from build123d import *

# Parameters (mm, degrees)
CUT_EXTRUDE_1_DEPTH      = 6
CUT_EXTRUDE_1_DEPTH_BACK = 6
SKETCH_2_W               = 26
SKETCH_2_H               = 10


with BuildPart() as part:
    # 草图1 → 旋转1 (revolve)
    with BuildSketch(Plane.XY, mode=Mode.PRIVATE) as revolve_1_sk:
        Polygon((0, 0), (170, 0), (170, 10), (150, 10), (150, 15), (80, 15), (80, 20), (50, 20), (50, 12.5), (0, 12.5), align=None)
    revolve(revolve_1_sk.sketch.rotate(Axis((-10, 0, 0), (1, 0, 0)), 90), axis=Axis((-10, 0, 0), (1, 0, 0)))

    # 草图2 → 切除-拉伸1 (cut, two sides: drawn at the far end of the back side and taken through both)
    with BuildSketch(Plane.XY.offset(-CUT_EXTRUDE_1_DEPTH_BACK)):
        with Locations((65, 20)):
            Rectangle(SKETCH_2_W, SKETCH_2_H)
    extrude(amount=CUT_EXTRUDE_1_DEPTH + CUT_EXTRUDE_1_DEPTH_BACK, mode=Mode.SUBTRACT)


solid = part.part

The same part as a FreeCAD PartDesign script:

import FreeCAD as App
import Part
import Sketcher
Q = App.Units.Quantity


def add_polygon(sketch, points):
    """Adds a closed chain of lines whose ends are joined by coincident constraints."""
    first, n = sketch.GeometryCount, len(points)
    for a, b in zip(points, points[1:] + points[:1]):
        sketch.addGeometry(Part.LineSegment(App.Vector(*a, 0), App.Vector(*b, 0)), False)
    for i in range(n):
        sketch.addConstraint(Sketcher.Constraint("Coincident", first + i, 2, first + (i + 1) % n, 1))

doc = App.newDocument("Part")
params = doc.addObject("Spreadsheet::Sheet", "Params")
for row, (alias, value) in enumerate([
    ("sketch1_width", "170 mm"),
    ("sketch1_width2", "20 mm"),
    ("sketch1_width3", "70 mm"),
    ("sketch1_width4", "30 mm"),
    ("sketch1_height", "10 mm"),
    ("revolution_angle", "360 deg"),
    ("sketch2_width", "26 mm"),
    ("sketch2_height", "10 mm"),
    ("pocket1_length", "6 mm"),
    ("pocket1_length2", "6 mm"),
], start=1):
    params.set(f"A{row}", alias)
    params.set(f"B{row}", "=" + value)
    params.setAlias(f"B{row}", alias)

body = doc.addObject("PartDesign::Body", "Body")

# Sketch on XY plane
sketch1 = doc.addObject("Sketcher::SketchObject", "Sketch")
body.addObject(sketch1)
sketch1.AttachmentSupport = (doc.XY_Plane, [""])
sketch1.MapMode = "FlatFace"
add_polygon(sketch1, [(0, 0), (170, 0), (170, 10), (150, 10), (150, 15), (80, 15), (80, 20), (50, 20), (50, 12), (0, 12)])  # lines 0-9
sketch1.addConstraint(Sketcher.Constraint("Horizontal", 0))
sketch1.addConstraint(Sketcher.Constraint("Vertical", 1))
sketch1.addConstraint(Sketcher.Constraint("Horizontal", 2))
sketch1.addConstraint(Sketcher.Constraint("Vertical", 3))
sketch1.addConstraint(Sketcher.Constraint("Horizontal", 4))
sketch1.addConstraint(Sketcher.Constraint("Vertical", 5))
sketch1.addConstraint(Sketcher.Constraint("Horizontal", 6))
sketch1.addConstraint(Sketcher.Constraint("Vertical", 7))
sketch1.addConstraint(Sketcher.Constraint("Horizontal", 8))
sketch1.addConstraint(Sketcher.Constraint("Vertical", 9))
sketch1.addConstraint(Sketcher.Constraint("Coincident", 9, 2, -1, 1))
sketch1.addConstraint(Sketcher.Constraint("Equal", 3, 5))
sketch1.addConstraint(Sketcher.Constraint("DistanceX", 0, 1, 0, 2, Q("170 mm")))
sketch1.addConstraint(Sketcher.Constraint("DistanceX", 2, 2, 2, 1, Q("20 mm")))
sketch1.addConstraint(Sketcher.Constraint("DistanceX", 4, 2, 4, 1, Q("70 mm")))
sketch1.addConstraint(Sketcher.Constraint("DistanceX", 6, 2, 6, 1, Q("30 mm")))
sketch1.addConstraint(Sketcher.Constraint("DistanceY", 1, 1, 1, 2, Q("10 mm")))
sketch1.addConstraint(Sketcher.Constraint("DistanceY", 3, 1, 3, 2, Q("5 mm")))
sketch1.addConstraint(Sketcher.Constraint("DistanceY", 7, 2, 7, 1, Q("7.5 mm")))
sketch1.setExpression("Constraints[22]", "Params.sketch1_width")
sketch1.setExpression("Constraints[23]", "Params.sketch1_width2")
sketch1.setExpression("Constraints[24]", "Params.sketch1_width3")
sketch1.setExpression("Constraints[25]", "Params.sketch1_width4")
sketch1.setExpression("Constraints[26]", "Params.sketch1_height")
revolution = doc.addObject("PartDesign::Revolution", "Revolution")
body.addObject(revolution)
revolution.Profile = sketch1
revolution.ReferenceAxis = (sketch1, ["H_Axis"])
revolution.setExpression("Angle", "Params.revolution_angle")

# Sketch on XY plane
sketch2 = doc.addObject("Sketcher::SketchObject", "Sketch001")
body.addObject(sketch2)
sketch2.AttachmentSupport = (doc.XY_Plane, [""])
sketch2.MapMode = "FlatFace"
add_polygon(sketch2, [(52, 25), (52, 15), (78, 15), (78, 25)])  # lines 0-3
sketch2.addConstraint(Sketcher.Constraint("Vertical", 0))
sketch2.addConstraint(Sketcher.Constraint("Horizontal", 1))
sketch2.addConstraint(Sketcher.Constraint("Vertical", 2))
sketch2.addConstraint(Sketcher.Constraint("Horizontal", 3))
sketch2.addConstraint(Sketcher.Constraint("DistanceX", 1, 1, 1, 2, Q("26 mm")))
sketch2.addConstraint(Sketcher.Constraint("DistanceY", 0, 2, 0, 1, Q("10 mm")))
sketch2.addConstraint(Sketcher.Constraint("DistanceX", -1, 1, 0, 2, Q("52 mm")))
sketch2.addConstraint(Sketcher.Constraint("DistanceY", -1, 1, 0, 2, Q("15 mm")))
sketch2.setExpression("Constraints[8]", "Params.sketch2_width")
sketch2.setExpression("Constraints[9]", "Params.sketch2_height")
pocket1 = doc.addObject("PartDesign::Pocket", "Pocket")
body.addObject(pocket1)
pocket1.Profile = sketch2
pocket1.Type = "TwoLengths"
pocket1.setExpression("Length", "Params.pocket1_length")
pocket1.setExpression("Length2", "Params.pocket1_length2")
pocket1.Reversed = True

doc.recompute()
